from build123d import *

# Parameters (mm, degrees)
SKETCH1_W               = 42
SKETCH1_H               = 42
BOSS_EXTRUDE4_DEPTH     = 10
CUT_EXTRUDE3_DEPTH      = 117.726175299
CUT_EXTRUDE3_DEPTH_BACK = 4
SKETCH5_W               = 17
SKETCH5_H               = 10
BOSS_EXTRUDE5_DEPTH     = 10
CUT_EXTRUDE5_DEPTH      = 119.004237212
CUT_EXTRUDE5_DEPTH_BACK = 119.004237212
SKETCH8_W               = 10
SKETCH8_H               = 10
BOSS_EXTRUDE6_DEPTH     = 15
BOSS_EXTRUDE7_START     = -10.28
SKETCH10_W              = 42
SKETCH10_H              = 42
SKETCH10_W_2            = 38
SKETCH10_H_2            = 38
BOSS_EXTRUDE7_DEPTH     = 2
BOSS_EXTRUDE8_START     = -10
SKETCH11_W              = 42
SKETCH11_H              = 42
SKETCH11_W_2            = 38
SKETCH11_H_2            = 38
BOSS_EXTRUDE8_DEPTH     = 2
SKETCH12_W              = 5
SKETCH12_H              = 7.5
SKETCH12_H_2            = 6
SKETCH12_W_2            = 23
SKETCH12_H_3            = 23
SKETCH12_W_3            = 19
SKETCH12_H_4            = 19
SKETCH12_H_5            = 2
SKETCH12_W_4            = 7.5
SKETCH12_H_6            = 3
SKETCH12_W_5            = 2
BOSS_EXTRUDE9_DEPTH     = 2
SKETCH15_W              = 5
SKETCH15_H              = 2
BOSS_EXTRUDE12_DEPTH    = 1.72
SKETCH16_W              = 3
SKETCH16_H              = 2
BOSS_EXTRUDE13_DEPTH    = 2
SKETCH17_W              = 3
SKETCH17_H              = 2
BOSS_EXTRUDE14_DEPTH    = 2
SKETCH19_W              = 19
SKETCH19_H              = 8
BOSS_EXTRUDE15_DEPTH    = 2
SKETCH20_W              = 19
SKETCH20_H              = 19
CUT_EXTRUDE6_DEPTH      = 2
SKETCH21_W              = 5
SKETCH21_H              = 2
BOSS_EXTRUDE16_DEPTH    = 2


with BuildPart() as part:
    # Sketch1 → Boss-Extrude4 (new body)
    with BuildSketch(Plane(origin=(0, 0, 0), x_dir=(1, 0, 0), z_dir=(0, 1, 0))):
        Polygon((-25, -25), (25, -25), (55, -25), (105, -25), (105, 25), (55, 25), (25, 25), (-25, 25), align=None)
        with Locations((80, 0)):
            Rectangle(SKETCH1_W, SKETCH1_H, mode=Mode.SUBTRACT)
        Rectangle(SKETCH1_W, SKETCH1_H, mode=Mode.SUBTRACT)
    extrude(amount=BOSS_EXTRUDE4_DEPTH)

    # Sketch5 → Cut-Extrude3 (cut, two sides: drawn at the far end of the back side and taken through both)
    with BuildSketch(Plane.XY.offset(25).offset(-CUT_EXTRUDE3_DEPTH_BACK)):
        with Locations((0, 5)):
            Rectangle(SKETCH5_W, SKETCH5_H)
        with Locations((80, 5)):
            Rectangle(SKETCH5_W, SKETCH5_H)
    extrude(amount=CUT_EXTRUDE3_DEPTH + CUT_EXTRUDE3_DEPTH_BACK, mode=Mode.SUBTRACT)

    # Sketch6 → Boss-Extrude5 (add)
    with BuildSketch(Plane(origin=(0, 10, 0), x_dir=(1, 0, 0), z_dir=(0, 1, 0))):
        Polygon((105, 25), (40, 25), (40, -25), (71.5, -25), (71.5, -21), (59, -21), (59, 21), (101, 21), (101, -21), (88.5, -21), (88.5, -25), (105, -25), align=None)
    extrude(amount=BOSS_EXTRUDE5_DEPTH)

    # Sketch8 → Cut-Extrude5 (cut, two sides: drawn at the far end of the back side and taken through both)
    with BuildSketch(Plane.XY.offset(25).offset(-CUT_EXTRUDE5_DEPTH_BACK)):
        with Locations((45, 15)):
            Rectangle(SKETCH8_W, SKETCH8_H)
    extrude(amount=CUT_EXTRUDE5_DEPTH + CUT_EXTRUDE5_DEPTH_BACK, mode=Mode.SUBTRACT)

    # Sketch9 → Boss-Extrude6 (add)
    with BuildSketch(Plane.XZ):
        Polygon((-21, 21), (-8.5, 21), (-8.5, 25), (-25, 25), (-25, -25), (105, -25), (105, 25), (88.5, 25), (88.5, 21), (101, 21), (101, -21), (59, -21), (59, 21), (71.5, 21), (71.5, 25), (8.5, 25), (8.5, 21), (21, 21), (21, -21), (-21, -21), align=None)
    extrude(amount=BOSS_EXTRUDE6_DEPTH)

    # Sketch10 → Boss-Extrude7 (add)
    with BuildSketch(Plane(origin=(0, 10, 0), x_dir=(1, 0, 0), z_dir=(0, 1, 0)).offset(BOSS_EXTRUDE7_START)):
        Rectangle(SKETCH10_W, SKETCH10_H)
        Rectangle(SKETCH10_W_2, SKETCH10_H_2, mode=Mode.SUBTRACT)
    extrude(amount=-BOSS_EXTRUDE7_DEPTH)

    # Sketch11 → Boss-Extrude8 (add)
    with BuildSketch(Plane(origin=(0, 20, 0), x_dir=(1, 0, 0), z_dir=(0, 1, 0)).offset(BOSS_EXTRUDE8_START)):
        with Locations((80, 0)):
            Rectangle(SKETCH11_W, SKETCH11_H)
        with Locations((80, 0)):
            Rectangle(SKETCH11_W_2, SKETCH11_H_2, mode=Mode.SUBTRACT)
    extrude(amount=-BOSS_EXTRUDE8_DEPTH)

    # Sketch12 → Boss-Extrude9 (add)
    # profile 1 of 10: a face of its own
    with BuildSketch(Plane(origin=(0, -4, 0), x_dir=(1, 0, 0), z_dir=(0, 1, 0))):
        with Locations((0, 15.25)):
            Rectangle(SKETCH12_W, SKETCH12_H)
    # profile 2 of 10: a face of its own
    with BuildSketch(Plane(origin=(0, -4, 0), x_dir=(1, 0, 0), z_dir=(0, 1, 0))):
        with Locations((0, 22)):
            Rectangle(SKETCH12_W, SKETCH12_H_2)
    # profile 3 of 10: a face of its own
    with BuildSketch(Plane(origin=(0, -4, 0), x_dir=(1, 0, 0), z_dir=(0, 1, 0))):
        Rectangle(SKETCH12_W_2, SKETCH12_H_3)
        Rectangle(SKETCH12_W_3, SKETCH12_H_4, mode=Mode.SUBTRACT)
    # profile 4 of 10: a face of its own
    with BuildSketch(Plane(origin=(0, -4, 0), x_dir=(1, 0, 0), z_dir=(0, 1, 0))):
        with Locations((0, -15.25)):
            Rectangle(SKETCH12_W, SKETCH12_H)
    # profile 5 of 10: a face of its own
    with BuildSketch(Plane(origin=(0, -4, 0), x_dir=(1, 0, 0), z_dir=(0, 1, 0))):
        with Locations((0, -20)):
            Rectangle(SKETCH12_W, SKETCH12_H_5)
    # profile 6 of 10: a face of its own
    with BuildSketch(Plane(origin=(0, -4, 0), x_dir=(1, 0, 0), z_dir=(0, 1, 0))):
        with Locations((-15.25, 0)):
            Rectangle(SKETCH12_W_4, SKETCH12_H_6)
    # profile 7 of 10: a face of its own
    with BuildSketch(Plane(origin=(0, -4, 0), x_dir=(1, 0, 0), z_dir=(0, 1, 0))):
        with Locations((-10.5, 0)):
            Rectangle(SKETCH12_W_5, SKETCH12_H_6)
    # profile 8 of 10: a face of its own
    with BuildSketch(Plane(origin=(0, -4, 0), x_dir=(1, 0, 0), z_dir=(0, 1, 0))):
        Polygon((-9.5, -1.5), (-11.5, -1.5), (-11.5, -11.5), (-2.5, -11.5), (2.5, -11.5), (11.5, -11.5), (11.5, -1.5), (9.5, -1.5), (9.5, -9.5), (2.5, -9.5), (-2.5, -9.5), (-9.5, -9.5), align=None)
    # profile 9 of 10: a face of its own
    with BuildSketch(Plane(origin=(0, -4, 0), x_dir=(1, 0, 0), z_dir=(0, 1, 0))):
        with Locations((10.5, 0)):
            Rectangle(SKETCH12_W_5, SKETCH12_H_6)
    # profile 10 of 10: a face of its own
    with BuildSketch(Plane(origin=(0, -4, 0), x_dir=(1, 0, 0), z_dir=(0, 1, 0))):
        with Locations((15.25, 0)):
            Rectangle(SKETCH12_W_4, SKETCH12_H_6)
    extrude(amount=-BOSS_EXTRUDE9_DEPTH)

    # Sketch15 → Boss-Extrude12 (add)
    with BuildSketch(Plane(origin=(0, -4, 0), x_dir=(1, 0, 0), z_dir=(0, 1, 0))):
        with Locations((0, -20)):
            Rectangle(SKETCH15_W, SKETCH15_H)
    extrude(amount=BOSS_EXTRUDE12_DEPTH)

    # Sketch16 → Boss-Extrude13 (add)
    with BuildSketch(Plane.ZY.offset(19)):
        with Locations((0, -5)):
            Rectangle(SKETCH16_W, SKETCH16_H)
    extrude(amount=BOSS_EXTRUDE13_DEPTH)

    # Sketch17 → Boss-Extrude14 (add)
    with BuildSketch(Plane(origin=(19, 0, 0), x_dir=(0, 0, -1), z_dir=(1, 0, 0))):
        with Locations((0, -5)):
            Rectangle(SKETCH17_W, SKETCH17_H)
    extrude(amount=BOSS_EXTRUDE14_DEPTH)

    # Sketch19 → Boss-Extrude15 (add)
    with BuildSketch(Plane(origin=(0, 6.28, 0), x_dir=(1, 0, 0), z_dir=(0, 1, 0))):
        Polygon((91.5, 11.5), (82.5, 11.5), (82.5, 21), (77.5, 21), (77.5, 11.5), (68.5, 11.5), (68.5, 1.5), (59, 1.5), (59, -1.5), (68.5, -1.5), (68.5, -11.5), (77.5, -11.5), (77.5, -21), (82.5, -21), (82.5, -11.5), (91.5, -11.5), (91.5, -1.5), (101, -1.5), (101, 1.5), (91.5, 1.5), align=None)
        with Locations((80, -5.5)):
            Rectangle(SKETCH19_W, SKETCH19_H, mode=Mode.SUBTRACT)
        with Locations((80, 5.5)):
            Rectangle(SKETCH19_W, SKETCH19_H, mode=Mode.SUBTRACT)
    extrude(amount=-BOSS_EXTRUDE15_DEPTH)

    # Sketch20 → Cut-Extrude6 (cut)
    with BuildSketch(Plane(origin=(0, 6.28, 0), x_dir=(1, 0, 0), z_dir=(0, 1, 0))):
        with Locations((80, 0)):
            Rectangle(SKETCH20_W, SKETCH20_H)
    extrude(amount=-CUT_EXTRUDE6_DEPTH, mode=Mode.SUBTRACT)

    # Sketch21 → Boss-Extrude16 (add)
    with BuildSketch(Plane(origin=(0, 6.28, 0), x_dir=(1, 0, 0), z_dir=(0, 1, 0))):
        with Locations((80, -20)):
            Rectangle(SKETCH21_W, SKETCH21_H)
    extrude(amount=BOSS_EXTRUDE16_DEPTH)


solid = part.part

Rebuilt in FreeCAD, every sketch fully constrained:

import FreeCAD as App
import Part
import Sketcher
from FreeCAD import Vector

doc = App.newDocument("Part")
body = doc.addObject("PartDesign::Body", "Body")

sketch1 = body.newObject("Sketcher::SketchObject", "Sketch")
sketch1.AttachmentSupport = (doc.getObject("XZ_Plane"), [""])
sketch1.MapMode = "FlatFace"
sketch1.addGeometry(Part.LineSegment(Vector(-25, 25, 0), Vector(105, 25, 0)), False)
sketch1.addGeometry(Part.LineSegment(Vector(105, 25, 0), Vector(105, -25, 0)), False)
sketch1.addGeometry(Part.LineSegment(Vector(105, -25, 0), Vector(-25, -25, 0)), False)
sketch1.addGeometry(Part.LineSegment(Vector(-25, -25, 0), Vector(-25, 25, 0)), False)
sketch1.addGeometry(Part.LineSegment(Vector(21, 21, 0), Vector(-21, 21, 0)), False)
sketch1.addGeometry(Part.LineSegment(Vector(-21, 21, 0), Vector(-21, -21, 0)), False)
sketch1.addGeometry(Part.LineSegment(Vector(-21, -21, 0), Vector(21, -21, 0)), False)
sketch1.addGeometry(Part.LineSegment(Vector(21, -21, 0), Vector(21, 21, 0)), False)
sketch1.addGeometry(Part.LineSegment(Vector(101, 21, 0), Vector(59, 21, 0)), False)
sketch1.addGeometry(Part.LineSegment(Vector(59, 21, 0), Vector(59, -21, 0)), False)
sketch1.addGeometry(Part.LineSegment(Vector(59, -21, 0), Vector(101, -21, 0)), False)
sketch1.addGeometry(Part.LineSegment(Vector(101, -21, 0), Vector(101, 21, 0)), False)
sketch1.addConstraint(Sketcher.Constraint("Coincident", 0, 2, 1, 1))
sketch1.addConstraint(Sketcher.Constraint("Coincident", 1, 2, 2, 1))
sketch1.addConstraint(Sketcher.Constraint("Coincident", 2, 2, 3, 1))
sketch1.addConstraint(Sketcher.Constraint("Coincident", 3, 2, 0, 1))
sketch1.addConstraint(Sketcher.Constraint("Coincident", 4, 2, 5, 1))
sketch1.addConstraint(Sketcher.Constraint("Coincident", 5, 2, 6, 1))
sketch1.addConstraint(Sketcher.Constraint("Coincident", 6, 2, 7, 1))
sketch1.addConstraint(Sketcher.Constraint("Coincident", 7, 2, 4, 1))
sketch1.addConstraint(Sketcher.Constraint("Coincident", 8, 2, 9, 1))
sketch1.addConstraint(Sketcher.Constraint("Coincident", 9, 2, 10, 1))
sketch1.addConstraint(Sketcher.Constraint("Coincident", 10, 2, 11, 1))
sketch1.addConstraint(Sketcher.Constraint("Coincident", 11, 2, 8, 1))
sketch1.addConstraint(Sketcher.Constraint("Horizontal", 0))
sketch1.addConstraint(Sketcher.Constraint("Vertical", 1))
sketch1.addConstraint(Sketcher.Constraint("Horizontal", 2))
sketch1.addConstraint(Sketcher.Constraint("Vertical", 3))
sketch1.addConstraint(Sketcher.Constraint("Horizontal", 4))
sketch1.addConstraint(Sketcher.Constraint("Vertical", 5))
sketch1.addConstraint(Sketcher.Constraint("Horizontal", 6))
sketch1.addConstraint(Sketcher.Constraint("Vertical", 7))
sketch1.addConstraint(Sketcher.Constraint("Horizontal", 8))
sketch1.addConstraint(Sketcher.Constraint("Vertical", 9))
sketch1.addConstraint(Sketcher.Constraint("Horizontal", 10))
sketch1.addConstraint(Sketcher.Constraint("Vertical", 11))
sketch1.addConstraint(Sketcher.Constraint("Symmetric", 4, 2, 6, 2, -1, 1))
sketch1.addConstraint(Sketcher.Constraint("Horizontal", 7, 2, 8, 2))
sketch1.addConstraint(Sketcher.Constraint("Horizontal", 6, 2, 9, 2))
sketch1.addConstraint(Sketcher.Constraint("Equal", 6, 8))
sketch1.addConstraint(Sketcher.Constraint("Equal", 10, 5))
sketch1.addConstraint(Sketcher.Constraint("DistanceX", 0, 1, 0, 2, 130.0))
sketch1.addConstraint(Sketcher.Constraint("DistanceX", 4, 2, 4, 1, 42.0))
sketch1.addConstraint(Sketcher.Constraint("DistanceY", 1, 2, 1, 1, 50.0))
sketch1.addConstraint(Sketcher.Constraint("DistanceX", -1, 1, 0, 2, 105.0))
sketch1.addConstraint(Sketcher.Constraint("DistanceY", -1, 1, 0, 2, 25.0))
sketch1.addConstraint(Sketcher.Constraint("DistanceX", -1, 1, 8, 2, 59.0))
pad1 = body.newObject("PartDesign::Pad", "Pad")
pad1.Profile = sketch1
pad1.Length = 10
pad1.Reversed = True

sketch2 = body.newObject("Sketcher::SketchObject", "Sketch001")
sketch2.AttachmentSupport = (doc.getObject("XY_Plane"), [""])
sketch2.MapMode = "FlatFace"
sketch2.AttachmentOffset = App.Placement(Vector(0, 0, 25), App.Rotation())
sketch2.addGeometry(Part.LineSegment(Vector(-8.5, 10, 0), Vector(-8.5, 0, 0)), False)
sketch2.addGeometry(Part.LineSegment(Vector(-8.5, 0, 0), Vector(8.5, 0, 0)), False)
sketch2.addGeometry(Part.LineSegment(Vector(8.5, 0, 0), Vector(8.5, 10, 0)), False)
sketch2.addGeometry(Part.LineSegment(Vector(8.5, 10, 0), Vector(-8.5, 10, 0)), False)
sketch2.addGeometry(Part.LineSegment(Vector(71.5, 10, 0), Vector(71.5, 0, 0)), False)
sketch2.addGeometry(Part.LineSegment(Vector(71.5, 0, 0), Vector(88.5, 0, 0)), False)
sketch2.addGeometry(Part.LineSegment(Vector(88.5, 0, 0), Vector(88.5, 10, 0)), False)
sketch2.addGeometry(Part.LineSegment(Vector(88.5, 10, 0), Vector(71.5, 10, 0)), False)
sketch2.addConstraint(Sketcher.Constraint("Coincident", 0, 2, 1, 1))
sketch2.addConstraint(Sketcher.Constraint("Coincident", 1, 2, 2, 1))
sketch2.addConstraint(Sketcher.Constraint("Coincident", 2, 2, 3, 1))
sketch2.addConstraint(Sketcher.Constraint("Coincident", 3, 2, 0, 1))
sketch2.addConstraint(Sketcher.Constraint("Coincident", 4, 2, 5, 1))
sketch2.addConstraint(Sketcher.Constraint("Coincident", 5, 2, 6, 1))
sketch2.addConstraint(Sketcher.Constraint("Coincident", 6, 2, 7, 1))
sketch2.addConstraint(Sketcher.Constraint("Coincident", 7, 2, 4, 1))
sketch2.addConstraint(Sketcher.Constraint("Vertical", 0))
sketch2.addConstraint(Sketcher.Constraint("Horizontal", 1))
sketch2.addConstraint(Sketcher.Constraint("Vertical", 2))
sketch2.addConstraint(Sketcher.Constraint("Horizontal", 3))
sketch2.addConstraint(Sketcher.Constraint("Vertical", 4))
sketch2.addConstraint(Sketcher.Constraint("Horizontal", 5))
sketch2.addConstraint(Sketcher.Constraint("Vertical", 6))
sketch2.addConstraint(Sketcher.Constraint("Horizontal", 7))
sketch2.addConstraint(Sketcher.Constraint("Symmetric", 0, 2, 1, 2, -1, 1))
sketch2.addConstraint(Sketcher.Constraint("PointOnObject", 4, 2, -1))
sketch2.addConstraint(Sketcher.Constraint("Horizontal", 3, 2, 6, 2))
sketch2.addConstraint(Sketcher.Constraint("Equal", 3, 5))
sketch2.addConstraint(Sketcher.Constraint("DistanceX", 1, 1, 1, 2, 17.0))
sketch2.addConstraint(Sketcher.Constraint("DistanceY", 0, 2, 0, 1, 10.0))
sketch2.addConstraint(Sketcher.Constraint("DistanceX", 1, 2, 4, 2, 63.0))
pocket1 = body.newObject("PartDesign::Pocket", "Pocket")
pocket1.Profile = sketch2
pocket1.Type = "TwoLengths"
pocket1.Length = 117.726175
pocket1.Length2 = 4
pocket1.Reversed = True

sketch3 = body.newObject("Sketcher::SketchObject", "Sketch002")
sketch3.AttachmentSupport = (doc.getObject("XZ_Plane"), [""])
sketch3.MapMode = "FlatFace"
sketch3.AttachmentOffset = App.Placement(Vector(0, 0, -10), App.Rotation())
sketch3.addGeometry(Part.LineSegment(Vector(105, -25, 0), Vector(40, -25, 0)), False)
sketch3.addGeometry(Part.LineSegment(Vector(40, -25, 0), Vector(40, 25, 0)), False)
sketch3.addGeometry(Part.LineSegment(Vector(40, 25, 0), Vector(71.5, 25, 0)), False)
sketch3.addGeometry(Part.LineSegment(Vector(71.5, 25, 0), Vector(71.5, 21, 0)), False)
sketch3.addGeometry(Part.LineSegment(Vector(71.5, 21, 0), Vector(59, 21, 0)), False)
sketch3.addGeometry(Part.LineSegment(Vector(59, 21, 0), Vector(59, -21, 0)), False)
sketch3.addGeometry(Part.LineSegment(Vector(59, -21, 0), Vector(101, -21, 0)), False)
sketch3.addGeometry(Part.LineSegment(Vector(101, -21, 0), Vector(101, 21, 0)), False)
sketch3.addGeometry(Part.LineSegment(Vector(101, 21, 0), Vector(88.5, 21, 0)), False)
sketch3.addGeometry(Part.LineSegment(Vector(88.5, 21, 0), Vector(88.5, 25, 0)), False)
sketch3.addGeometry(Part.LineSegment(Vector(88.5, 25, 0), Vector(105, 25, 0)), False)
sketch3.addGeometry(Part.LineSegment(Vector(105, 25, 0), Vector(105, -25, 0)), False)
sketch3.addConstraint(Sketcher.Constraint("Coincident", 0, 2, 1, 1))
sketch3.addConstraint(Sketcher.Constraint("Coincident", 1, 2, 2, 1))
sketch3.addConstraint(Sketcher.Constraint("Coincident", 2, 2, 3, 1))
sketch3.addConstraint(Sketcher.Constraint("Coincident", 3, 2, 4, 1))
sketch3.addConstraint(Sketcher.Constraint("Coincident", 4, 2, 5, 1))
sketch3.addConstraint(Sketcher.Constraint("Coincident", 5, 2, 6, 1))
sketch3.addConstraint(Sketcher.Constraint("Coincident", 6, 2, 7, 1))
sketch3.addConstraint(Sketcher.Constraint("Coincident", 7, 2, 8, 1))
sketch3.addConstraint(Sketcher.Constraint("Coincident", 8, 2, 9, 1))
sketch3.addConstraint(Sketcher.Constraint("Coincident", 9, 2, 10, 1))
sketch3.addConstraint(Sketcher.Constraint("Coincident", 10, 2, 11, 1))
sketch3.addConstraint(Sketcher.Constraint("Coincident", 11, 2, 0, 1))
sketch3.addConstraint(Sketcher.Constraint("Horizontal", 0))
sketch3.addConstraint(Sketcher.Constraint("Vertical", 1))
sketch3.addConstraint(Sketcher.Constraint("Horizontal", 2))
sketch3.addConstraint(Sketcher.Constraint("Vertical", 3))
sketch3.addConstraint(Sketcher.Constraint("Horizontal", 4))
sketch3.addConstraint(Sketcher.Constraint("Vertical", 5))
sketch3.addConstraint(Sketcher.Constraint("Horizontal", 6))
sketch3.addConstraint(Sketcher.Constraint("Vertical", 7))
sketch3.addConstraint(Sketcher.Constraint("Horizontal", 8))
sketch3.addConstraint(Sketcher.Constraint("Vertical", 9))
sketch3.addConstraint(Sketcher.Constraint("Horizontal", 10))
sketch3.addConstraint(Sketcher.Constraint("Vertical", 11))
sketch3.addConstraint(Sketcher.Constraint("Horizontal", 4, 2, 7, 2))
sketch3.addConstraint(Sketcher.Constraint("Horizontal", 2, 2, 9, 2))
sketch3.addConstraint(Sketcher.Constraint("Equal", 4, 8))
sketch3.addConstraint(Sketcher.Constraint("Equal", 6, 5))
sketch3.addConstraint(Sketcher.Constraint("DistanceX", 0, 2, 0, 1, 65.0))
sketch3.addConstraint(Sketcher.Constraint("DistanceX", 6, 1, 6, 2, 42.0))
sketch3.addConstraint(Sketcher.Constraint("DistanceY", 1, 1, 1, 2, 50.0))
sketch3.addConstraint(Sketcher.Constraint("DistanceY", 3, 2, 3, 1, 4.0))
sketch3.addConstraint(Sketcher.Constraint("DistanceX", 2, 1, 2, 2, 31.5))
sketch3.addConstraint(Sketcher.Constraint("DistanceX", 4, 2, 4, 1, 12.5))
sketch3.addConstraint(Sketcher.Constraint("DistanceX", -1, 1, 0, 2, 40.0))
sketch3.addConstraint(Sketcher.Constraint("DistanceY", 0, 2, -1, 1, 25.0))
pad2 = body.newObject("PartDesign::Pad", "Pad001")
pad2.Profile = sketch3
pad2.Length = 10
pad2.Reversed = True

sketch4 = body.newObject("Sketcher::SketchObject", "Sketch003")
sketch4.AttachmentSupport = (doc.getObject("XY_Plane"), [""])
sketch4.MapMode = "FlatFace"
sketch4.AttachmentOffset = App.Placement(Vector(0, 0, 25), App.Rotation())
sketch4.addGeometry(Part.LineSegment(Vector(40, 20, 0), Vector(40, 10, 0)), False)
sketch4.addGeometry(Part.LineSegment(Vector(40, 10, 0), Vector(50, 10, 0)), False)
sketch4.addGeometry(Part.LineSegment(Vector(50, 10, 0), Vector(50, 20, 0)), False)
sketch4.addGeometry(Part.LineSegment(Vector(50, 20, 0), Vector(40, 20, 0)), False)
sketch4.addConstraint(Sketcher.Constraint("Coincident", 0, 2, 1, 1))
sketch4.addConstraint(Sketcher.Constraint("Coincident", 1, 2, 2, 1))
sketch4.addConstraint(Sketcher.Constraint("Coincident", 2, 2, 3, 1))
sketch4.addConstraint(Sketcher.Constraint("Coincident", 3, 2, 0, 1))
sketch4.addConstraint(Sketcher.Constraint("Vertical", 0))
sketch4.addConstraint(Sketcher.Constraint("Horizontal", 1))
sketch4.addConstraint(Sketcher.Constraint("Vertical", 2))
sketch4.addConstraint(Sketcher.Constraint("Horizontal", 3))
sketch4.addConstraint(Sketcher.Constraint("Equal", 3, 0))
sketch4.addConstraint(Sketcher.Constraint("DistanceX", 1, 1, 1, 2, 10.0))
sketch4.addConstraint(Sketcher.Constraint("DistanceX", -1, 1, 0, 2, 40.0))
sketch4.addConstraint(Sketcher.Constraint("DistanceY", -1, 1, 0, 2, 10.0))
pocket2 = body.newObject("PartDesign::Pocket", "Pocket001")
pocket2.Profile = sketch4
pocket2.Type = "ThroughAll"
pocket2.Midplane = True

sketch5 = body.newObject("Sketcher::SketchObject", "Sketch004")
sketch5.AttachmentSupport = (doc.getObject("XZ_Plane"), [""])
sketch5.MapMode = "FlatFace"
sketch5.addGeometry(Part.LineSegment(Vector(-21, 21, 0), Vector(-8.5, 21, 0)), False)
sketch5.addGeometry(Part.LineSegment(Vector(-8.5, 21, 0), Vector(-8.5, 25, 0)), False)
sketch5.addGeometry(Part.LineSegment(Vector(-8.5, 25, 0), Vector(-25, 25, 0)), False)
sketch5.addGeometry(Part.LineSegment(Vector(-25, 25, 0), Vector(-25, -25, 0)), False)
sketch5.addGeometry(Part.LineSegment(Vector(-25, -25, 0), Vector(105, -25, 0)), False)
sketch5.addGeometry(Part.LineSegment(Vector(105, -25, 0), Vector(105, 25, 0)), False)
sketch5.addGeometry(Part.LineSegment(Vector(105, 25, 0), Vector(88.5, 25, 0)), False)
sketch5.addGeometry(Part.LineSegment(Vector(88.5, 25, 0), Vector(88.5, 21, 0)), False)
sketch5.addGeometry(Part.LineSegment(Vector(88.5, 21, 0), Vector(101, 21, 0)), False)
sketch5.addGeometry(Part.LineSegment(Vector(101, 21, 0), Vector(101, -21, 0)), False)
sketch5.addGeometry(Part.LineSegment(Vector(101, -21, 0), Vector(59, -21, 0)), False)
sketch5.addGeometry(Part.LineSegment(Vector(59, -21, 0), Vector(59, 21, 0)), False)
sketch5.addGeometry(Part.LineSegment(Vector(59, 21, 0), Vector(71.5, 21, 0)), False)
sketch5.addGeometry(Part.LineSegment(Vector(71.5, 21, 0), Vector(71.5, 25, 0)), False)
sketch5.addGeometry(Part.LineSegment(Vector(71.5, 25, 0), Vector(8.5, 25, 0)), False)
sketch5.addGeometry(Part.LineSegment(Vector(8.5, 25, 0), Vector(8.5, 21, 0)), False)
sketch5.addGeometry(Part.LineSegment(Vector(8.5, 21, 0), Vector(21, 21, 0)), False)
sketch5.addGeometry(Part.LineSegment(Vector(21, 21, 0), Vector(21, -21, 0)), False)
sketch5.addGeometry(Part.LineSegment(Vector(21, -21, 0), Vector(-21, -21, 0)), False)
sketch5.addGeometry(Part.LineSegment(Vector(-21, -21, 0), Vector(-21, 21, 0)), False)
sketch5.addConstraint(Sketcher.Constraint("Coincident", 0, 2, 1, 1))
sketch5.addConstraint(Sketcher.Constraint("Coincident", 1, 2, 2, 1))
sketch5.addConstraint(Sketcher.Constraint("Coincident", 2, 2, 3, 1))
sketch5.addConstraint(Sketcher.Constraint("Coincident", 3, 2, 4, 1))
sketch5.addConstraint(Sketcher.Constraint("Coincident", 4, 2, 5, 1))
sketch5.addConstraint(Sketcher.Constraint("Coincident", 5, 2, 6, 1))
sketch5.addConstraint(Sketcher.Constraint("Coincident", 6, 2, 7, 1))
sketch5.addConstraint(Sketcher.Constraint("Coincident", 7, 2, 8, 1))
sketch5.addConstraint(Sketcher.Constraint("Coincident", 8, 2, 9, 1))
sketch5.addConstraint(Sketcher.Constraint("Coincident", 9, 2, 10, 1))
sketch5.addConstraint(Sketcher.Constraint("Coincident", 10, 2, 11, 1))
sketch5.addConstraint(Sketcher.Constraint("Coincident", 11, 2, 12, 1))
sketch5.addConstraint(Sketcher.Constraint("Coincident", 12, 2, 13, 1))
sketch5.addConstraint(Sketcher.Constraint("Coincident", 13, 2, 14, 1))
sketch5.addConstraint(Sketcher.Constraint("Coincident", 14, 2, 15, 1))
sketch5.addConstraint(Sketcher.Constraint("Coincident", 15, 2, 16, 1))
sketch5.addConstraint(Sketcher.Constraint("Coincident", 16, 2, 17, 1))
sketch5.addConstraint(Sketcher.Constraint("Coincident", 17, 2, 18, 1))
sketch5.addConstraint(Sketcher.Constraint("Coincident", 18, 2, 19, 1))
sketch5.addConstraint(Sketcher.Constraint("Coincident", 19, 2, 0, 1))
sketch5.addConstraint(Sketcher.Constraint("Horizontal", 0))
sketch5.addConstraint(Sketcher.Constraint("Vertical", 1))
sketch5.addConstraint(Sketcher.Constraint("Horizontal", 2))
sketch5.addConstraint(Sketcher.Constraint("Vertical", 3))
sketch5.addConstraint(Sketcher.Constraint("Horizontal", 4))
sketch5.addConstraint(Sketcher.Constraint("Vertical", 5))
sketch5.addConstraint(Sketcher.Constraint("Horizontal", 6))
sketch5.addConstraint(Sketcher.Constraint("Vertical", 7))
sketch5.addConstraint(Sketcher.Constraint("Horizontal", 8))
sketch5.addConstraint(Sketcher.Constraint("Vertical", 9))
sketch5.addConstraint(Sketcher.Constraint("Horizontal", 10))
sketch5.addConstraint(Sketcher.Constraint("Vertical", 11))
sketch5.addConstraint(Sketcher.Constraint("Horizontal", 12))
sketch5.addConstraint(Sketcher.Constraint("Vertical", 13))
sketch5.addConstraint(Sketcher.Constraint("Horizontal", 14))
sketch5.addConstraint(Sketcher.Constraint("Vertical", 15))
sketch5.addConstraint(Sketcher.Constraint("Horizontal", 16))
sketch5.addConstraint(Sketcher.Constraint("Vertical", 17))
sketch5.addConstraint(Sketcher.Constraint("Horizontal", 18))
sketch5.addConstraint(Sketcher.Constraint("Vertical", 19))
sketch5.addConstraint(Sketcher.Constraint("Symmetric", 16, 2, 18, 2, -1, 1))
sketch5.addConstraint(Sketcher.Constraint("Symmetric", 1, 2, 14, 2, -2))
sketch5.addConstraint(Sketcher.Constraint("Horizontal", 2, 2, 5, 2))
sketch5.addConstraint(Sketcher.Constraint("Horizontal", 0, 2, 7, 2))
sketch5.addConstraint(Sketcher.Constraint("Horizontal", 8, 2, 11, 2))
sketch5.addConstraint(Sketcher.Constraint("Horizontal", 12, 2, 15, 2))
sketch5.addConstraint(Sketcher.Constraint("Horizontal", 10, 2, 17, 2))
sketch5.addConstraint(Sketcher.Constraint("Equal", 2, 6))
sketch5.addConstraint(Sketcher.Constraint("Equal", 0, 8))
sketch5.addConstraint(Sketcher.Constraint("Equal", 8, 12))
sketch5.addConstraint(Sketcher.Constraint("Equal", 10, 18))
sketch5.addConstraint(Sketcher.Constraint("Equal", 18, 9))
sketch5.addConstraint(Sketcher.Constraint("DistanceX", 4, 1, 4, 2, 130.0))
sketch5.addConstraint(Sketcher.Constraint("DistanceX", 10, 2, 10, 1, 42.0))
sketch5.addConstraint(Sketcher.Constraint("DistanceX", 14, 2, 14, 1, 63.0))
sketch5.addConstraint(Sketcher.Constraint("DistanceY", 1, 1, 1, 2, 4.0))
sketch5.addConstraint(Sketcher.Constraint("DistanceY", 3, 2, 3, 1, 50.0))
sketch5.addConstraint(Sketcher.Constraint("DistanceX", 0, 1, 0, 2, 12.5))
pad3 = body.newObject("PartDesign::Pad", "Pad002")
pad3.Profile = sketch5
pad3.Length = 15

sketch6 = body.newObject("Sketcher::SketchObject", "Sketch005")
sketch6.AttachmentSupport = (doc.getObject("XZ_Plane"), [""])
sketch6.MapMode = "FlatFace"
sketch6.AttachmentOffset = App.Placement(Vector(0, 0, 0.28), App.Rotation())
sketch6.addGeometry(Part.LineSegment(Vector(-21, -21, 0), Vector(-21, 21, 0)), False)
sketch6.addGeometry(Part.LineSegment(Vector(-21, 21, 0), Vector(21, 21, 0)), False)
sketch6.addGeometry(Part.LineSegment(Vector(21, 21, 0), Vector(21, -21, 0)), False)
sketch6.addGeometry(Part.LineSegment(Vector(21, -21, 0), Vector(-21, -21, 0)), False)
sketch6.addGeometry(Part.LineSegment(Vector(19, 19, 0), Vector(-19, 19, 0)), False)
sketch6.addGeometry(Part.LineSegment(Vector(-19, 19, 0), Vector(-19, -19, 0)), False)
sketch6.addGeometry(Part.LineSegment(Vector(-19, -19, 0), Vector(19, -19, 0)), False)
sketch6.addGeometry(Part.LineSegment(Vector(19, -19, 0), Vector(19, 19, 0)), False)
sketch6.addConstraint(Sketcher.Constraint("Coincident", 0, 2, 1, 1))
sketch6.addConstraint(Sketcher.Constraint("Coincident", 1, 2, 2, 1))
sketch6.addConstraint(Sketcher.Constraint("Coincident", 2, 2, 3, 1))
sketch6.addConstraint(Sketcher.Constraint("Coincident", 3, 2, 0, 1))
sketch6.addConstraint(Sketcher.Constraint("Coincident", 4, 2, 5, 1))
sketch6.addConstraint(Sketcher.Constraint("Coincident", 5, 2, 6, 1))
sketch6.addConstraint(Sketcher.Constraint("Coincident", 6, 2, 7, 1))
sketch6.addConstraint(Sketcher.Constraint("Coincident", 7, 2, 4, 1))
sketch6.addConstraint(Sketcher.Constraint("Vertical", 0))
sketch6.addConstraint(Sketcher.Constraint("Horizontal", 1))
sketch6.addConstraint(Sketcher.Constraint("Vertical", 2))
sketch6.addConstraint(Sketcher.Constraint("Horizontal", 3))
sketch6.addConstraint(Sketcher.Constraint("Horizontal", 4))
sketch6.addConstraint(Sketcher.Constraint("Vertical", 5))
sketch6.addConstraint(Sketcher.Constraint("Horizontal", 6))
sketch6.addConstraint(Sketcher.Constraint("Vertical", 7))
sketch6.addConstraint(Sketcher.Constraint("Symmetric", 0, 2, 2, 2, -1, 1))
sketch6.addConstraint(Sketcher.Constraint("Symmetric", 4, 2, 6, 2, -1, 1))
sketch6.addConstraint(Sketcher.Constraint("Equal", 3, 0))
sketch6.addConstraint(Sketcher.Constraint("Equal", 6, 5))
sketch6.addConstraint(Sketcher.Constraint("DistanceX", 1, 1, 1, 2, 42.0))
sketch6.addConstraint(Sketcher.Constraint("DistanceX", 4, 2, 4, 1, 38.0))
pad4 = body.newObject("PartDesign::Pad", "Pad003")
pad4.Profile = sketch6
pad4.Length = 2

sketch7 = body.newObject("Sketcher::SketchObject", "Sketch006")
sketch7.AttachmentSupport = (doc.getObject("XZ_Plane"), [""])
sketch7.MapMode = "FlatFace"
sketch7.AttachmentOffset = App.Placement(Vector(0, 0, -10), App.Rotation())
sketch7.addGeometry(Part.LineSegment(Vector(59, -21, 0), Vector(59, 21, 0)), False)
sketch7.addGeometry(Part.LineSegment(Vector(59, 21, 0), Vector(101, 21, 0)), False)
sketch7.addGeometry(Part.LineSegment(Vector(101, 21, 0), Vector(101, -21, 0)), False)
sketch7.addGeometry(Part.LineSegment(Vector(101, -21, 0), Vector(59, -21, 0)), False)
sketch7.addGeometry(Part.LineSegment(Vector(99, 19, 0), Vector(61, 19, 0)), False)
sketch7.addGeometry(Part.LineSegment(Vector(61, 19, 0), Vector(61, -19, 0)), False)
sketch7.addGeometry(Part.LineSegment(Vector(61, -19, 0), Vector(99, -19, 0)), False)
sketch7.addGeometry(Part.LineSegment(Vector(99, -19, 0), Vector(99, 19, 0)), False)
sketch7.addConstraint(Sketcher.Constraint("Coincident", 0, 2, 1, 1))
sketch7.addConstraint(Sketcher.Constraint("Coincident", 1, 2, 2, 1))
sketch7.addConstraint(Sketcher.Constraint("Coincident", 2, 2, 3, 1))
sketch7.addConstraint(Sketcher.Constraint("Coincident", 3, 2, 0, 1))
sketch7.addConstraint(Sketcher.Constraint("Coincident", 4, 2, 5, 1))
sketch7.addConstraint(Sketcher.Constraint("Coincident", 5, 2, 6, 1))
sketch7.addConstraint(Sketcher.Constraint("Coincident", 6, 2, 7, 1))
sketch7.addConstraint(Sketcher.Constraint("Coincident", 7, 2, 4, 1))
sketch7.addConstraint(Sketcher.Constraint("Vertical", 0))
sketch7.addConstraint(Sketcher.Constraint("Horizontal", 1))
sketch7.addConstraint(Sketcher.Constraint("Vertical", 2))
sketch7.addConstraint(Sketcher.Constraint("Horizontal", 3))
sketch7.addConstraint(Sketcher.Constraint("Horizontal", 4))
sketch7.addConstraint(Sketcher.Constraint("Vertical", 5))
sketch7.addConstraint(Sketcher.Constraint("Horizontal", 6))
sketch7.addConstraint(Sketcher.Constraint("Vertical", 7))
sketch7.addConstraint(Sketcher.Constraint("Equal", 3, 0))
sketch7.addConstraint(Sketcher.Constraint("Equal", 6, 5))
sketch7.addConstraint(Sketcher.Constraint("DistanceX", 1, 1, 1, 2, 42.0))
sketch7.addConstraint(Sketcher.Constraint("DistanceX", 4, 2, 4, 1, 38.0))
sketch7.addConstraint(Sketcher.Constraint("DistanceX", -1, 1, 0, 2, 59.0))
sketch7.addConstraint(Sketcher.Constraint("DistanceY", -1, 1, 0, 2, 21.0))
sketch7.addConstraint(Sketcher.Constraint("DistanceX", -1, 1, 4, 2, 61.0))
sketch7.addConstraint(Sketcher.Constraint("DistanceY", -1, 1, 4, 2, 19.0))
pad5 = body.newObject("PartDesign::Pad", "Pad004")
pad5.Profile = sketch7
pad5.Length = 2

sketch8 = body.newObject("Sketcher::SketchObject", "Sketch007")
sketch8.AttachmentSupport = (doc.getObject("XZ_Plane"), [""])
sketch8.MapMode = "FlatFace"
sketch8.AttachmentOffset = App.Placement(Vector(0, 0, 4), App.Rotation())
sketch8.addGeometry(Part.LineSegment(Vector(-2.5, -11.5, 0), Vector(-11.5, -11.5, 0)), False)
sketch8.addGeometry(Part.LineSegment(Vector(-11.5, -11.5, 0), Vector(-11.5, -1.5, 0)), False)
sketch8.addGeometry(Part.LineSegment(Vector(-11.5, -1.5, 0), Vector(-19, -1.5, 0)), False)
sketch8.addGeometry(Part.LineSegment(Vector(-19, -1.5, 0), Vector(-19, 1.5, 0)), False)
sketch8.addGeometry(Part.LineSegment(Vector(-19, 1.5, 0), Vector(-11.5, 1.5, 0)), False)
sketch8.addGeometry(Part.LineSegment(Vector(-11.5, 1.5, 0), Vector(-11.5, 11.5, 0)), False)
sketch8.addGeometry(Part.LineSegment(Vector(-11.5, 11.5, 0), Vector(-2.5, 11.5, 0)), False)
sketch8.addGeometry(Part.LineSegment(Vector(-2.5, 11.5, 0), Vector(-2.5, 21, 0)), False)
sketch8.addGeometry(Part.LineSegment(Vector(-2.5, 21, 0), Vector(2.5, 21, 0)), False)
sketch8.addGeometry(Part.LineSegment(Vector(2.5, 21, 0), Vector(2.5, 11.5, 0)), False)
sketch8.addGeometry(Part.LineSegment(Vector(2.5, 11.5, 0), Vector(11.5, 11.5, 0)), False)
sketch8.addGeometry(Part.LineSegment(Vector(11.5, 11.5, 0), Vector(11.5, 1.5, 0)), False)
sketch8.addGeometry(Part.LineSegment(Vector(11.5, 1.5, 0), Vector(19, 1.5, 0)), False)
sketch8.addGeometry(Part.LineSegment(Vector(19, 1.5, 0), Vector(19, -1.5, 0)), False)
sketch8.addGeometry(Part.LineSegment(Vector(19, -1.5, 0), Vector(11.5, -1.5, 0)), False)
sketch8.addGeometry(Part.LineSegment(Vector(11.5, -1.5, 0), Vector(11.5, -11.5, 0)), False)
sketch8.addGeometry(Part.LineSegment(Vector(11.5, -11.5, 0), Vector(2.5, -11.5, 0)), False)
sketch8.addGeometry(Part.LineSegment(Vector(2.5, -11.5, 0), Vector(2.5, -25, 0)), False)
sketch8.addGeometry(Part.LineSegment(Vector(2.5, -25, 0), Vector(-2.5, -25, 0)), False)
sketch8.addGeometry(Part.LineSegment(Vector(-2.5, -25, 0), Vector(-2.5, -11.5, 0)), False)
sketch8.addGeometry(Part.LineSegment(Vector(9.5, -9.5, 0), Vector(9.5, 9.5, 0)), False)
sketch8.addGeometry(Part.LineSegment(Vector(9.5, 9.5, 0), Vector(-9.5, 9.5, 0)), False)
sketch8.addGeometry(Part.LineSegment(Vector(-9.5, 9.5, 0), Vector(-9.5, -9.5, 0)), False)
sketch8.addGeometry(Part.LineSegment(Vector(-9.5, -9.5, 0), Vector(9.5, -9.5, 0)), False)
sketch8.addConstraint(Sketcher.Constraint("Coincident", 0, 2, 1, 1))
sketch8.addConstraint(Sketcher.Constraint("Coincident", 1, 2, 2, 1))
sketch8.addConstraint(Sketcher.Constraint("Coincident", 2, 2, 3, 1))
sketch8.addConstraint(Sketcher.Constraint("Coincident", 3, 2, 4, 1))
sketch8.addConstraint(Sketcher.Constraint("Coincident", 4, 2, 5, 1))
sketch8.addConstraint(Sketcher.Constraint("Coincident", 5, 2, 6, 1))
sketch8.addConstraint(Sketcher.Constraint("Coincident", 6, 2, 7, 1))
sketch8.addConstraint(Sketcher.Constraint("Coincident", 7, 2, 8, 1))
sketch8.addConstraint(Sketcher.Constraint("Coincident", 8, 2, 9, 1))
sketch8.addConstraint(Sketcher.Constraint("Coincident", 9, 2, 10, 1))
sketch8.addConstraint(Sketcher.Constraint("Coincident", 10, 2, 11, 1))
sketch8.addConstraint(Sketcher.Constraint("Coincident", 11, 2, 12, 1))
sketch8.addConstraint(Sketcher.Constraint("Coincident", 12, 2, 13, 1))
sketch8.addConstraint(Sketcher.Constraint("Coincident", 13, 2, 14, 1))
sketch8.addConstraint(Sketcher.Constraint("Coincident", 14, 2, 15, 1))
sketch8.addConstraint(Sketcher.Constraint("Coincident", 15, 2, 16, 1))
sketch8.addConstraint(Sketcher.Constraint("Coincident", 16, 2, 17, 1))
sketch8.addConstraint(Sketcher.Constraint("Coincident", 17, 2, 18, 1))
sketch8.addConstraint(Sketcher.Constraint("Coincident", 18, 2, 19, 1))
sketch8.addConstraint(Sketcher.Constraint("Coincident", 19, 2, 0, 1))
sketch8.addConstraint(Sketcher.Constraint("Coincident", 20, 2, 21, 1))
sketch8.addConstraint(Sketcher.Constraint("Coincident", 21, 2, 22, 1))
sketch8.addConstraint(Sketcher.Constraint("Coincident", 22, 2, 23, 1))
sketch8.addConstraint(Sketcher.Constraint("Coincident", 23, 2, 20, 1))
sketch8.addConstraint(Sketcher.Constraint("Horizontal", 0))
sketch8.addConstraint(Sketcher.Constraint("Vertical", 1))
sketch8.addConstraint(Sketcher.Constraint("Horizontal", 2))
sketch8.addConstraint(Sketcher.Constraint("Vertical", 3))
sketch8.addConstraint(Sketcher.Constraint("Horizontal", 4))
sketch8.addConstraint(Sketcher.Constraint("Vertical", 5))
sketch8.addConstraint(Sketcher.Constraint("Horizontal", 6))
sketch8.addConstraint(Sketcher.Constraint("Vertical", 7))
sketch8.addConstraint(Sketcher.Constraint("Horizontal", 8))
sketch8.addConstraint(Sketcher.Constraint("Vertical", 9))
sketch8.addConstraint(Sketcher.Constraint("Horizontal", 10))
sketch8.addConstraint(Sketcher.Constraint("Vertical", 11))
sketch8.addConstraint(Sketcher.Constraint("Horizontal", 12))
sketch8.addConstraint(Sketcher.Constraint("Vertical", 13))
sketch8.addConstraint(Sketcher.Constraint("Horizontal", 14))
sketch8.addConstraint(Sketcher.Constraint("Vertical", 15))
sketch8.addConstraint(Sketcher.Constraint("Horizontal", 16))
sketch8.addConstraint(Sketcher.Constraint("Vertical", 17))
sketch8.addConstraint(Sketcher.Constraint("Horizontal", 18))
sketch8.addConstraint(Sketcher.Constraint("Vertical", 19))
sketch8.addConstraint(Sketcher.Constraint("Vertical", 20))
sketch8.addConstraint(Sketcher.Constraint("Horizontal", 21))
sketch8.addConstraint(Sketcher.Constraint("Vertical", 22))
sketch8.addConstraint(Sketcher.Constraint("Horizontal", 23))
sketch8.addConstraint(Sketcher.Constraint("Symmetric", 0, 2, 10, 2, -1, 1))
sketch8.addConstraint(Sketcher.Constraint("Symmetric", 2, 2, 12, 2, -1, 1))
sketch8.addConstraint(Sketcher.Constraint("Symmetric", 4, 2, 14, 2, -1, 1))
sketch8.addConstraint(Sketcher.Constraint("Symmetric", 6, 2, 16, 2, -1, 1))
sketch8.addConstraint(Sketcher.Constraint("Symmetric", 20, 2, 22, 2, -1, 1))
sketch8.addConstraint(Sketcher.Constraint("Symmetric", 6, 2, 9, 2, -2))
sketch8.addConstraint(Sketcher.Constraint("Symmetric", 4, 2, 11, 2, -2))
sketch8.addConstraint(Sketcher.Constraint("Vertical", 7, 2, 18, 2))
sketch8.addConstraint(Sketcher.Constraint("Equal", 23, 20))
sketch8.addConstraint(Sketcher.Constraint("DistanceX", 0, 2, 0, 1, 9.0))
sketch8.addConstraint(Sketcher.Constraint("DistanceX", 8, 1, 8, 2, 5.0))
sketch8.addConstraint(Sketcher.Constraint("DistanceX", 21, 2, 21, 1, 19.0))
sketch8.addConstraint(Sketcher.Constraint("DistanceY", 1, 1, 1, 2, 10.0))
sketch8.addConstraint(Sketcher.Constraint("DistanceY", 3, 1, 3, 2, 3.0))
sketch8.addConstraint(Sketcher.Constraint("DistanceX", 2, 2, 2, 1, 7.5))
sketch8.addConstraint(Sketcher.Constraint("DistanceY", 7, 1, 7, 2, 9.5))
sketch8.addConstraint(Sketcher.Constraint("DistanceY", 17, 2, 17, 1, 13.5))
pad6 = body.newObject("PartDesign::Pad", "Pad005")
pad6.Profile = sketch8
pad6.Length = 2

sketch9 = body.newObject("Sketcher::SketchObject", "Sketch008")
sketch9.AttachmentSupport = (doc.getObject("XZ_Plane"), [""])
sketch9.MapMode = "FlatFace"
sketch9.AttachmentOffset = App.Placement(Vector(0, 0, 4), App.Rotation())
sketch9.addGeometry(Part.LineSegment(Vector(-2.5, 19, 0), Vector(-2.5, 21, 0)), False)
sketch9.addGeometry(Part.LineSegment(Vector(-2.5, 21, 0), Vector(2.5, 21, 0)), False)
sketch9.addGeometry(Part.LineSegment(Vector(2.5, 21, 0), Vector(2.5, 19, 0)), False)
sketch9.addGeometry(Part.LineSegment(Vector(2.5, 19, 0), Vector(-2.5, 19, 0)), False)
sketch9.addConstraint(Sketcher.Constraint("Coincident", 0, 2, 1, 1))
sketch9.addConstraint(Sketcher.Constraint("Coincident", 1, 2, 2, 1))
sketch9.addConstraint(Sketcher.Constraint("Coincident", 2, 2, 3, 1))
sketch9.addConstraint(Sketcher.Constraint("Coincident", 3, 2, 0, 1))
sketch9.addConstraint(Sketcher.Constraint("Vertical", 0))
sketch9.addConstraint(Sketcher.Constraint("Horizontal", 1))
sketch9.addConstraint(Sketcher.Constraint("Vertical", 2))
sketch9.addConstraint(Sketcher.Constraint("Horizontal", 3))
sketch9.addConstraint(Sketcher.Constraint("DistanceX", 1, 1, 1, 2, 5.0))
sketch9.addConstraint(Sketcher.Constraint("DistanceY", 0, 1, 0, 2, 2.0))
sketch9.addConstraint(Sketcher.Constraint("DistanceY", -1, 1, 0, 2, 21.0))
sketch9.addConstraint(Sketcher.Constraint("DistanceX", 0, 2, -1, 1, 2.5))
pad7 = body.newObject("PartDesign::Pad", "Pad006")
pad7.Profile = sketch9
pad7.Length = 1.72
pad7.Reversed = True

sketch10 = body.newObject("Sketcher::SketchObject", "Sketch009")
sketch10.AttachmentSupport = (doc.getObject("YZ_Plane"), [""])
sketch10.MapMode = "FlatFace"
sketch10.AttachmentOffset = App.Placement(Vector(0, 0, -19), App.Rotation())
sketch10.addGeometry(Part.LineSegment(Vector(-4, -1.5, 0), Vector(-6, -1.5, 0)), False)
sketch10.addGeometry(Part.LineSegment(Vector(-6, -1.5, 0), Vector(-6, 1.5, 0)), False)
sketch10.addGeometry(Part.LineSegment(Vector(-6, 1.5, 0), Vector(-4, 1.5, 0)), False)
sketch10.addGeometry(Part.LineSegment(Vector(-4, 1.5, 0), Vector(-4, -1.5, 0)), False)
sketch10.addConstraint(Sketcher.Constraint("Coincident", 0, 2, 1, 1))
sketch10.addConstraint(Sketcher.Constraint("Coincident", 1, 2, 2, 1))
sketch10.addConstraint(Sketcher.Constraint("Coincident", 2, 2, 3, 1))
sketch10.addConstraint(Sketcher.Constraint("Coincident", 3, 2, 0, 1))
sketch10.addConstraint(Sketcher.Constraint("Horizontal", 0))
sketch10.addConstraint(Sketcher.Constraint("Vertical", 1))
sketch10.addConstraint(Sketcher.Constraint("Horizontal", 2))
sketch10.addConstraint(Sketcher.Constraint("Vertical", 3))
sketch10.addConstraint(Sketcher.Constraint("DistanceX", 0, 2, 0, 1, 2.0))
sketch10.addConstraint(Sketcher.Constraint("DistanceY", 1, 1, 1, 2, 3.0))
sketch10.addConstraint(Sketcher.Constraint("DistanceX", 0, 2, -1, 1, 6.0))
sketch10.addConstraint(Sketcher.Constraint("DistanceY", 0, 2, -1, 1, 1.5))
pad8 = body.newObject("PartDesign::Pad", "Pad007")
pad8.Profile = sketch10
pad8.Length = 2
pad8.Reversed = True

sketch11 = body.newObject("Sketcher::SketchObject", "Sketch010")
sketch11.AttachmentSupport = (doc.getObject("YZ_Plane"), [""])
sketch11.MapMode = "FlatFace"
sketch11.AttachmentOffset = App.Placement(Vector(0, 0, 19), App.Rotation())
sketch11.addGeometry(Part.LineSegment(Vector(-4, 1.5, 0), Vector(-6, 1.5, 0)), False)
sketch11.addGeometry(Part.LineSegment(Vector(-6, 1.5, 0), Vector(-6, -1.5, 0)), False)
sketch11.addGeometry(Part.LineSegment(Vector(-6, -1.5, 0), Vector(-4, -1.5, 0)), False)
sketch11.addGeometry(Part.LineSegment(Vector(-4, -1.5, 0), Vector(-4, 1.5, 0)), False)
sketch11.addConstraint(Sketcher.Constraint("Coincident", 0, 2, 1, 1))
sketch11.addConstraint(Sketcher.Constraint("Coincident", 1, 2, 2, 1))
sketch11.addConstraint(Sketcher.Constraint("Coincident", 2, 2, 3, 1))
sketch11.addConstraint(Sketcher.Constraint("Coincident", 3, 2, 0, 1))
sketch11.addConstraint(Sketcher.Constraint("Horizontal", 0))
sketch11.addConstraint(Sketcher.Constraint("Vertical", 1))
sketch11.addConstraint(Sketcher.Constraint("Horizontal", 2))
sketch11.addConstraint(Sketcher.Constraint("Vertical", 3))
sketch11.addConstraint(Sketcher.Constraint("DistanceX", 0, 2, 0, 1, 2.0))
sketch11.addConstraint(Sketcher.Constraint("DistanceY", 1, 2, 1, 1, 3.0))
sketch11.addConstraint(Sketcher.Constraint("DistanceX", 0, 2, -1, 1, 6.0))
sketch11.addConstraint(Sketcher.Constraint("DistanceY", -1, 1, 0, 2, 1.5))
pad9 = body.newObject("PartDesign::Pad", "Pad008")
pad9.Profile = sketch11
pad9.Length = 2

sketch12 = body.newObject("Sketcher::SketchObject", "Sketch011")
sketch12.AttachmentSupport = (doc.getObject("XZ_Plane"), [""])
sketch12.MapMode = "FlatFace"
sketch12.AttachmentOffset = App.Placement(Vector(0, 0, -6.28), App.Rotation())
sketch12.addGeometry(Part.LineSegment(Vector(91.5, -11.5, 0), Vector(82.5, -11.5, 0)), False)
sketch12.addGeometry(Part.LineSegment(Vector(82.5, -11.5, 0), Vector(82.5, -21, 0)), False)
sketch12.addGeometry(Part.LineSegment(Vector(82.5, -21, 0), Vector(77.5, -21, 0)), False)
sketch12.addGeometry(Part.LineSegment(Vector(77.5, -21, 0), Vector(77.5, -11.5, 0)), False)
sketch12.addGeometry(Part.LineSegment(Vector(77.5, -11.5, 0), Vector(68.5, -11.5, 0)), False)
sketch12.addGeometry(Part.LineSegment(Vector(68.5, -11.5, 0), Vector(68.5, -1.5, 0)), False)
sketch12.addGeometry(Part.LineSegment(Vector(68.5, -1.5, 0), Vector(59, -1.5, 0)), False)
sketch12.addGeometry(Part.LineSegment(Vector(59, -1.5, 0), Vector(59, 1.5, 0)), False)
sketch12.addGeometry(Part.LineSegment(Vector(59, 1.5, 0), Vector(68.5, 1.5, 0)), False)
sketch12.addGeometry(Part.LineSegment(Vector(68.5, 1.5, 0), Vector(68.5, 11.5, 0)), False)
sketch12.addGeometry(Part.LineSegment(Vector(68.5, 11.5, 0), Vector(77.5, 11.5, 0)), False)
sketch12.addGeometry(Part.LineSegment(Vector(77.5, 11.5, 0), Vector(77.5, 21, 0)), False)
sketch12.addGeometry(Part.LineSegment(Vector(77.5, 21, 0), Vector(82.5, 21, 0)), False)
sketch12.addGeometry(Part.LineSegment(Vector(82.5, 21, 0), Vector(82.5, 11.5, 0)), False)
sketch12.addGeometry(Part.LineSegment(Vector(82.5, 11.5, 0), Vector(91.5, 11.5, 0)), False)
sketch12.addGeometry(Part.LineSegment(Vector(91.5, 11.5, 0), Vector(91.5, 1.5, 0)), False)
sketch12.addGeometry(Part.LineSegment(Vector(91.5, 1.5, 0), Vector(101, 1.5, 0)), False)
sketch12.addGeometry(Part.LineSegment(Vector(101, 1.5, 0), Vector(101, -1.5, 0)), False)
sketch12.addGeometry(Part.LineSegment(Vector(101, -1.5, 0), Vector(91.5, -1.5, 0)), False)
sketch12.addGeometry(Part.LineSegment(Vector(91.5, -1.5, 0), Vector(91.5, -11.5, 0)), False)
sketch12.addGeometry(Part.LineSegment(Vector(89.5, 9.5, 0), Vector(70.5, 9.5, 0)), False)
sketch12.addGeometry(Part.LineSegment(Vector(70.5, 9.5, 0), Vector(70.5, 1.5, 0)), False)
sketch12.addGeometry(Part.LineSegment(Vector(70.5, 1.5, 0), Vector(89.5, 1.5, 0)), False)
sketch12.addGeometry(Part.LineSegment(Vector(89.5, 1.5, 0), Vector(89.5, 9.5, 0)), False)
sketch12.addGeometry(Part.LineSegment(Vector(89.5, -1.5, 0), Vector(70.5, -1.5, 0)), False)
sketch12.addGeometry(Part.LineSegment(Vector(70.5, -1.5, 0), Vector(70.5, -9.5, 0)), False)
sketch12.addGeometry(Part.LineSegment(Vector(70.5, -9.5, 0), Vector(89.5, -9.5, 0)), False)
sketch12.addGeometry(Part.LineSegment(Vector(89.5, -9.5, 0), Vector(89.5, -1.5, 0)), False)
sketch12.addConstraint(Sketcher.Constraint("Coincident", 0, 2, 1, 1))
sketch12.addConstraint(Sketcher.Constraint("Coincident", 1, 2, 2, 1))
sketch12.addConstraint(Sketcher.Constraint("Coincident", 2, 2, 3, 1))
sketch12.addConstraint(Sketcher.Constraint("Coincident", 3, 2, 4, 1))
sketch12.addConstraint(Sketcher.Constraint("Coincident", 4, 2, 5, 1))
sketch12.addConstraint(Sketcher.Constraint("Coincident", 5, 2, 6, 1))
sketch12.addConstraint(Sketcher.Constraint("Coincident", 6, 2, 7, 1))
sketch12.addConstraint(Sketcher.Constraint("Coincident", 7, 2, 8, 1))
sketch12.addConstraint(Sketcher.Constraint("Coincident", 8, 2, 9, 1))
sketch12.addConstraint(Sketcher.Constraint("Coincident", 9, 2, 10, 1))
sketch12.addConstraint(Sketcher.Constraint("Coincident", 10, 2, 11, 1))
sketch12.addConstraint(Sketcher.Constraint("Coincident", 11, 2, 12, 1))
sketch12.addConstraint(Sketcher.Constraint("Coincident", 12, 2, 13, 1))
sketch12.addConstraint(Sketcher.Constraint("Coincident", 13, 2, 14, 1))
sketch12.addConstraint(Sketcher.Constraint("Coincident", 14, 2, 15, 1))
sketch12.addConstraint(Sketcher.Constraint("Coincident", 15, 2, 16, 1))
sketch12.addConstraint(Sketcher.Constraint("Coincident", 16, 2, 17, 1))
sketch12.addConstraint(Sketcher.Constraint("Coincident", 17, 2, 18, 1))
sketch12.addConstraint(Sketcher.Constraint("Coincident", 18, 2, 19, 1))
sketch12.addConstraint(Sketcher.Constraint("Coincident", 19, 2, 0, 1))
sketch12.addConstraint(Sketcher.Constraint("Coincident", 20, 2, 21, 1))
sketch12.addConstraint(Sketcher.Constraint("Coincident", 21, 2, 22, 1))
sketch12.addConstraint(Sketcher.Constraint("Coincident", 22, 2, 23, 1))
sketch12.addConstraint(Sketcher.Constraint("Coincident", 23, 2, 20, 1))
sketch12.addConstraint(Sketcher.Constraint("Coincident", 24, 2, 25, 1))
sketch12.addConstraint(Sketcher.Constraint("Coincident", 25, 2, 26, 1))
sketch12.addConstraint(Sketcher.Constraint("Coincident", 26, 2, 27, 1))
sketch12.addConstraint(Sketcher.Constraint("Coincident", 27, 2, 24, 1))
sketch12.addConstraint(Sketcher.Constraint("Horizontal", 0))
sketch12.addConstraint(Sketcher.Constraint("Vertical", 1))
sketch12.addConstraint(Sketcher.Constraint("Horizontal", 2))
sketch12.addConstraint(Sketcher.Constraint("Vertical", 3))
sketch12.addConstraint(Sketcher.Constraint("Horizontal", 4))
sketch12.addConstraint(Sketcher.Constraint("Vertical", 5))
sketch12.addConstraint(Sketcher.Constraint("Horizontal", 6))
sketch12.addConstraint(Sketcher.Constraint("Vertical", 7))
sketch12.addConstraint(Sketcher.Constraint("Horizontal", 8))
sketch12.addConstraint(Sketcher.Constraint("Vertical", 9))
sketch12.addConstraint(Sketcher.Constraint("Horizontal", 10))
sketch12.addConstraint(Sketcher.Constraint("Vertical", 11))
sketch12.addConstraint(Sketcher.Constraint("Horizontal", 12))
sketch12.addConstraint(Sketcher.Constraint("Vertical", 13))
sketch12.addConstraint(Sketcher.Constraint("Horizontal", 14))
sketch12.addConstraint(Sketcher.Constraint("Vertical", 15))
sketch12.addConstraint(Sketcher.Constraint("Horizontal", 16))
sketch12.addConstraint(Sketcher.Constraint("Vertical", 17))
sketch12.addConstraint(Sketcher.Constraint("Horizontal", 18))
sketch12.addConstraint(Sketcher.Constraint("Vertical", 19))
sketch12.addConstraint(Sketcher.Constraint("Horizontal", 20))
sketch12.addConstraint(Sketcher.Constraint("Vertical", 21))
sketch12.addConstraint(Sketcher.Constraint("Horizontal", 22))
sketch12.addConstraint(Sketcher.Constraint("Vertical", 23))
sketch12.addConstraint(Sketcher.Constraint("Horizontal", 24))
sketch12.addConstraint(Sketcher.Constraint("Vertical", 25))
sketch12.addConstraint(Sketcher.Constraint("Horizontal", 26))
sketch12.addConstraint(Sketcher.Constraint("Vertical", 27))
sketch12.addConstraint(Sketcher.Constraint("Symmetric", 5, 2, 8, 2, -1))
sketch12.addConstraint(Sketcher.Constraint("Symmetric", 3, 2, 10, 2, -1))
sketch12.addConstraint(Sketcher.Constraint("Symmetric", 1, 2, 12, 2, -1))
sketch12.addConstraint(Sketcher.Constraint("Symmetric", 15, 2, 18, 2, -1))
sketch12.addConstraint(Sketcher.Constraint("Symmetric", 21, 2, 24, 2, -1))
sketch12.addConstraint(Sketcher.Constraint("Symmetric", 23, 2, 26, 2, -1))
sketch12.addConstraint(Sketcher.Constraint("Horizontal", 0, 2, 3, 2))
sketch12.addConstraint(Sketcher.Constraint("Horizontal", 10, 2, 13, 2))
sketch12.addConstraint(Sketcher.Constraint("Horizontal", 8, 2, 15, 2))
sketch12.addConstraint(Sketcher.Constraint("Horizontal", 16, 2, 21, 2))
sketch12.addConstraint(Sketcher.Constraint("Equal", 0, 4))
sketch12.addConstraint(Sketcher.Constraint("Equal", 8, 16))
sketch12.addConstraint(Sketcher.Constraint("Equal", 18, 1))
sketch12.addConstraint(Sketcher.Constraint("DistanceX", 0, 2, 0, 1, 9.0))
sketch12.addConstraint(Sketcher.Constraint("DistanceX", 2, 2, 2, 1, 5.0))
sketch12.addConstraint(Sketcher.Constraint("DistanceX", 20, 2, 20, 1, 19.0))
sketch12.addConstraint(Sketcher.Constraint("DistanceY", 5, 1, 5, 2, 10.0))
sketch12.addConstraint(Sketcher.Constraint("DistanceY", 7, 1, 7, 2, 3.0))
sketch12.addConstraint(Sketcher.Constraint("DistanceY", 21, 2, 21, 1, 8.0))
sketch12.addConstraint(Sketcher.Constraint("DistanceX", 6, 2, 6, 1, 9.5))
sketch12.addConstraint(Sketcher.Constraint("DistanceX", -1, 1, 6, 2, 59.0))
sketch12.addConstraint(Sketcher.Constraint("DistanceX", 9, 2, 20, 2, 2.0))
pad10 = body.newObject("PartDesign::Pad", "Pad009")
pad10.Profile = sketch12
pad10.Length = 2

sketch13 = body.newObject("Sketcher::SketchObject", "Sketch012")
sketch13.AttachmentSupport = (doc.getObject("XZ_Plane"), [""])
sketch13.MapMode = "FlatFace"
sketch13.AttachmentOffset = App.Placement(Vector(0, 0, -6.28), App.Rotation())
sketch13.addGeometry(Part.LineSegment(Vector(70.5, -9.5, 0), Vector(70.5, 9.5, 0)), False)
sketch13.addGeometry(Part.LineSegment(Vector(70.5, 9.5, 0), Vector(89.5, 9.5, 0)), False)
sketch13.addGeometry(Part.LineSegment(Vector(89.5, 9.5, 0), Vector(89.5, -9.5, 0)), False)
sketch13.addGeometry(Part.LineSegment(Vector(89.5, -9.5, 0), Vector(70.5, -9.5, 0)), False)
sketch13.addConstraint(Sketcher.Constraint("Coincident", 0, 2, 1, 1))
sketch13.addConstraint(Sketcher.Constraint("Coincident", 1, 2, 2, 1))
sketch13.addConstraint(Sketcher.Constraint("Coincident", 2, 2, 3, 1))
sketch13.addConstraint(Sketcher.Constraint("Coincident", 3, 2, 0, 1))
sketch13.addConstraint(Sketcher.Constraint("Vertical", 0))
sketch13.addConstraint(Sketcher.Constraint("Horizontal", 1))
sketch13.addConstraint(Sketcher.Constraint("Vertical", 2))
sketch13.addConstraint(Sketcher.Constraint("Horizontal", 3))
sketch13.addConstraint(Sketcher.Constraint("Equal", 3, 0))
sketch13.addConstraint(Sketcher.Constraint("DistanceX", 1, 1, 1, 2, 19.0))
sketch13.addConstraint(Sketcher.Constraint("DistanceX", -1, 1, 0, 2, 70.5))
sketch13.addConstraint(Sketcher.Constraint("DistanceY", -1, 1, 0, 2, 9.5))
pocket3 = body.newObject("PartDesign::Pocket", "Pocket002")
pocket3.Profile = sketch13
pocket3.Length = 2
pocket3.Reversed = True

sketch14 = body.newObject("Sketcher::SketchObject", "Sketch013")
sketch14.AttachmentSupport = (doc.getObject("XZ_Plane"), [""])
sketch14.MapMode = "FlatFace"
sketch14.AttachmentOffset = App.Placement(Vector(0, 0, -6.28), App.Rotation())
sketch14.addGeometry(Part.LineSegment(Vector(77.5, 19, 0), Vector(77.5, 21, 0)), False)
sketch14.addGeometry(Part.LineSegment(Vector(77.5, 21, 0), Vector(82.5, 21, 0)), False)
sketch14.addGeometry(Part.LineSegment(Vector(82.5, 21, 0), Vector(82.5, 19, 0)), False)
sketch14.addGeometry(Part.LineSegment(Vector(82.5, 19, 0), Vector(77.5, 19, 0)), False)
sketch14.addConstraint(Sketcher.Constraint("Coincident", 0, 2, 1, 1))
sketch14.addConstraint(Sketcher.Constraint("Coincident", 1, 2, 2, 1))
sketch14.addConstraint(Sketcher.Constraint("Coincident", 2, 2, 3, 1))
sketch14.addConstraint(Sketcher.Constraint("Coincident", 3, 2, 0, 1))
sketch14.addConstraint(Sketcher.Constraint("Vertical", 0))
sketch14.addConstraint(Sketcher.Constraint("Horizontal", 1))
sketch14.addConstraint(Sketcher.Constraint("Vertical", 2))
sketch14.addConstraint(Sketcher.Constraint("Horizontal", 3))
sketch14.addConstraint(Sketcher.Constraint("DistanceX", 1, 1, 1, 2, 5.0))
sketch14.addConstraint(Sketcher.Constraint("DistanceY", 0, 1, 0, 2, 2.0))
sketch14.addConstraint(Sketcher.Constraint("DistanceY", -1, 1, 0, 2, 21.0))
sketch14.addConstraint(Sketcher.Constraint("DistanceX", -1, 1, 0, 2, 77.5))
pad11 = body.newObject("PartDesign::Pad", "Pad010")
pad11.Profile = sketch14
pad11.Length = 2
pad11.Reversed = True

doc.recompute()
